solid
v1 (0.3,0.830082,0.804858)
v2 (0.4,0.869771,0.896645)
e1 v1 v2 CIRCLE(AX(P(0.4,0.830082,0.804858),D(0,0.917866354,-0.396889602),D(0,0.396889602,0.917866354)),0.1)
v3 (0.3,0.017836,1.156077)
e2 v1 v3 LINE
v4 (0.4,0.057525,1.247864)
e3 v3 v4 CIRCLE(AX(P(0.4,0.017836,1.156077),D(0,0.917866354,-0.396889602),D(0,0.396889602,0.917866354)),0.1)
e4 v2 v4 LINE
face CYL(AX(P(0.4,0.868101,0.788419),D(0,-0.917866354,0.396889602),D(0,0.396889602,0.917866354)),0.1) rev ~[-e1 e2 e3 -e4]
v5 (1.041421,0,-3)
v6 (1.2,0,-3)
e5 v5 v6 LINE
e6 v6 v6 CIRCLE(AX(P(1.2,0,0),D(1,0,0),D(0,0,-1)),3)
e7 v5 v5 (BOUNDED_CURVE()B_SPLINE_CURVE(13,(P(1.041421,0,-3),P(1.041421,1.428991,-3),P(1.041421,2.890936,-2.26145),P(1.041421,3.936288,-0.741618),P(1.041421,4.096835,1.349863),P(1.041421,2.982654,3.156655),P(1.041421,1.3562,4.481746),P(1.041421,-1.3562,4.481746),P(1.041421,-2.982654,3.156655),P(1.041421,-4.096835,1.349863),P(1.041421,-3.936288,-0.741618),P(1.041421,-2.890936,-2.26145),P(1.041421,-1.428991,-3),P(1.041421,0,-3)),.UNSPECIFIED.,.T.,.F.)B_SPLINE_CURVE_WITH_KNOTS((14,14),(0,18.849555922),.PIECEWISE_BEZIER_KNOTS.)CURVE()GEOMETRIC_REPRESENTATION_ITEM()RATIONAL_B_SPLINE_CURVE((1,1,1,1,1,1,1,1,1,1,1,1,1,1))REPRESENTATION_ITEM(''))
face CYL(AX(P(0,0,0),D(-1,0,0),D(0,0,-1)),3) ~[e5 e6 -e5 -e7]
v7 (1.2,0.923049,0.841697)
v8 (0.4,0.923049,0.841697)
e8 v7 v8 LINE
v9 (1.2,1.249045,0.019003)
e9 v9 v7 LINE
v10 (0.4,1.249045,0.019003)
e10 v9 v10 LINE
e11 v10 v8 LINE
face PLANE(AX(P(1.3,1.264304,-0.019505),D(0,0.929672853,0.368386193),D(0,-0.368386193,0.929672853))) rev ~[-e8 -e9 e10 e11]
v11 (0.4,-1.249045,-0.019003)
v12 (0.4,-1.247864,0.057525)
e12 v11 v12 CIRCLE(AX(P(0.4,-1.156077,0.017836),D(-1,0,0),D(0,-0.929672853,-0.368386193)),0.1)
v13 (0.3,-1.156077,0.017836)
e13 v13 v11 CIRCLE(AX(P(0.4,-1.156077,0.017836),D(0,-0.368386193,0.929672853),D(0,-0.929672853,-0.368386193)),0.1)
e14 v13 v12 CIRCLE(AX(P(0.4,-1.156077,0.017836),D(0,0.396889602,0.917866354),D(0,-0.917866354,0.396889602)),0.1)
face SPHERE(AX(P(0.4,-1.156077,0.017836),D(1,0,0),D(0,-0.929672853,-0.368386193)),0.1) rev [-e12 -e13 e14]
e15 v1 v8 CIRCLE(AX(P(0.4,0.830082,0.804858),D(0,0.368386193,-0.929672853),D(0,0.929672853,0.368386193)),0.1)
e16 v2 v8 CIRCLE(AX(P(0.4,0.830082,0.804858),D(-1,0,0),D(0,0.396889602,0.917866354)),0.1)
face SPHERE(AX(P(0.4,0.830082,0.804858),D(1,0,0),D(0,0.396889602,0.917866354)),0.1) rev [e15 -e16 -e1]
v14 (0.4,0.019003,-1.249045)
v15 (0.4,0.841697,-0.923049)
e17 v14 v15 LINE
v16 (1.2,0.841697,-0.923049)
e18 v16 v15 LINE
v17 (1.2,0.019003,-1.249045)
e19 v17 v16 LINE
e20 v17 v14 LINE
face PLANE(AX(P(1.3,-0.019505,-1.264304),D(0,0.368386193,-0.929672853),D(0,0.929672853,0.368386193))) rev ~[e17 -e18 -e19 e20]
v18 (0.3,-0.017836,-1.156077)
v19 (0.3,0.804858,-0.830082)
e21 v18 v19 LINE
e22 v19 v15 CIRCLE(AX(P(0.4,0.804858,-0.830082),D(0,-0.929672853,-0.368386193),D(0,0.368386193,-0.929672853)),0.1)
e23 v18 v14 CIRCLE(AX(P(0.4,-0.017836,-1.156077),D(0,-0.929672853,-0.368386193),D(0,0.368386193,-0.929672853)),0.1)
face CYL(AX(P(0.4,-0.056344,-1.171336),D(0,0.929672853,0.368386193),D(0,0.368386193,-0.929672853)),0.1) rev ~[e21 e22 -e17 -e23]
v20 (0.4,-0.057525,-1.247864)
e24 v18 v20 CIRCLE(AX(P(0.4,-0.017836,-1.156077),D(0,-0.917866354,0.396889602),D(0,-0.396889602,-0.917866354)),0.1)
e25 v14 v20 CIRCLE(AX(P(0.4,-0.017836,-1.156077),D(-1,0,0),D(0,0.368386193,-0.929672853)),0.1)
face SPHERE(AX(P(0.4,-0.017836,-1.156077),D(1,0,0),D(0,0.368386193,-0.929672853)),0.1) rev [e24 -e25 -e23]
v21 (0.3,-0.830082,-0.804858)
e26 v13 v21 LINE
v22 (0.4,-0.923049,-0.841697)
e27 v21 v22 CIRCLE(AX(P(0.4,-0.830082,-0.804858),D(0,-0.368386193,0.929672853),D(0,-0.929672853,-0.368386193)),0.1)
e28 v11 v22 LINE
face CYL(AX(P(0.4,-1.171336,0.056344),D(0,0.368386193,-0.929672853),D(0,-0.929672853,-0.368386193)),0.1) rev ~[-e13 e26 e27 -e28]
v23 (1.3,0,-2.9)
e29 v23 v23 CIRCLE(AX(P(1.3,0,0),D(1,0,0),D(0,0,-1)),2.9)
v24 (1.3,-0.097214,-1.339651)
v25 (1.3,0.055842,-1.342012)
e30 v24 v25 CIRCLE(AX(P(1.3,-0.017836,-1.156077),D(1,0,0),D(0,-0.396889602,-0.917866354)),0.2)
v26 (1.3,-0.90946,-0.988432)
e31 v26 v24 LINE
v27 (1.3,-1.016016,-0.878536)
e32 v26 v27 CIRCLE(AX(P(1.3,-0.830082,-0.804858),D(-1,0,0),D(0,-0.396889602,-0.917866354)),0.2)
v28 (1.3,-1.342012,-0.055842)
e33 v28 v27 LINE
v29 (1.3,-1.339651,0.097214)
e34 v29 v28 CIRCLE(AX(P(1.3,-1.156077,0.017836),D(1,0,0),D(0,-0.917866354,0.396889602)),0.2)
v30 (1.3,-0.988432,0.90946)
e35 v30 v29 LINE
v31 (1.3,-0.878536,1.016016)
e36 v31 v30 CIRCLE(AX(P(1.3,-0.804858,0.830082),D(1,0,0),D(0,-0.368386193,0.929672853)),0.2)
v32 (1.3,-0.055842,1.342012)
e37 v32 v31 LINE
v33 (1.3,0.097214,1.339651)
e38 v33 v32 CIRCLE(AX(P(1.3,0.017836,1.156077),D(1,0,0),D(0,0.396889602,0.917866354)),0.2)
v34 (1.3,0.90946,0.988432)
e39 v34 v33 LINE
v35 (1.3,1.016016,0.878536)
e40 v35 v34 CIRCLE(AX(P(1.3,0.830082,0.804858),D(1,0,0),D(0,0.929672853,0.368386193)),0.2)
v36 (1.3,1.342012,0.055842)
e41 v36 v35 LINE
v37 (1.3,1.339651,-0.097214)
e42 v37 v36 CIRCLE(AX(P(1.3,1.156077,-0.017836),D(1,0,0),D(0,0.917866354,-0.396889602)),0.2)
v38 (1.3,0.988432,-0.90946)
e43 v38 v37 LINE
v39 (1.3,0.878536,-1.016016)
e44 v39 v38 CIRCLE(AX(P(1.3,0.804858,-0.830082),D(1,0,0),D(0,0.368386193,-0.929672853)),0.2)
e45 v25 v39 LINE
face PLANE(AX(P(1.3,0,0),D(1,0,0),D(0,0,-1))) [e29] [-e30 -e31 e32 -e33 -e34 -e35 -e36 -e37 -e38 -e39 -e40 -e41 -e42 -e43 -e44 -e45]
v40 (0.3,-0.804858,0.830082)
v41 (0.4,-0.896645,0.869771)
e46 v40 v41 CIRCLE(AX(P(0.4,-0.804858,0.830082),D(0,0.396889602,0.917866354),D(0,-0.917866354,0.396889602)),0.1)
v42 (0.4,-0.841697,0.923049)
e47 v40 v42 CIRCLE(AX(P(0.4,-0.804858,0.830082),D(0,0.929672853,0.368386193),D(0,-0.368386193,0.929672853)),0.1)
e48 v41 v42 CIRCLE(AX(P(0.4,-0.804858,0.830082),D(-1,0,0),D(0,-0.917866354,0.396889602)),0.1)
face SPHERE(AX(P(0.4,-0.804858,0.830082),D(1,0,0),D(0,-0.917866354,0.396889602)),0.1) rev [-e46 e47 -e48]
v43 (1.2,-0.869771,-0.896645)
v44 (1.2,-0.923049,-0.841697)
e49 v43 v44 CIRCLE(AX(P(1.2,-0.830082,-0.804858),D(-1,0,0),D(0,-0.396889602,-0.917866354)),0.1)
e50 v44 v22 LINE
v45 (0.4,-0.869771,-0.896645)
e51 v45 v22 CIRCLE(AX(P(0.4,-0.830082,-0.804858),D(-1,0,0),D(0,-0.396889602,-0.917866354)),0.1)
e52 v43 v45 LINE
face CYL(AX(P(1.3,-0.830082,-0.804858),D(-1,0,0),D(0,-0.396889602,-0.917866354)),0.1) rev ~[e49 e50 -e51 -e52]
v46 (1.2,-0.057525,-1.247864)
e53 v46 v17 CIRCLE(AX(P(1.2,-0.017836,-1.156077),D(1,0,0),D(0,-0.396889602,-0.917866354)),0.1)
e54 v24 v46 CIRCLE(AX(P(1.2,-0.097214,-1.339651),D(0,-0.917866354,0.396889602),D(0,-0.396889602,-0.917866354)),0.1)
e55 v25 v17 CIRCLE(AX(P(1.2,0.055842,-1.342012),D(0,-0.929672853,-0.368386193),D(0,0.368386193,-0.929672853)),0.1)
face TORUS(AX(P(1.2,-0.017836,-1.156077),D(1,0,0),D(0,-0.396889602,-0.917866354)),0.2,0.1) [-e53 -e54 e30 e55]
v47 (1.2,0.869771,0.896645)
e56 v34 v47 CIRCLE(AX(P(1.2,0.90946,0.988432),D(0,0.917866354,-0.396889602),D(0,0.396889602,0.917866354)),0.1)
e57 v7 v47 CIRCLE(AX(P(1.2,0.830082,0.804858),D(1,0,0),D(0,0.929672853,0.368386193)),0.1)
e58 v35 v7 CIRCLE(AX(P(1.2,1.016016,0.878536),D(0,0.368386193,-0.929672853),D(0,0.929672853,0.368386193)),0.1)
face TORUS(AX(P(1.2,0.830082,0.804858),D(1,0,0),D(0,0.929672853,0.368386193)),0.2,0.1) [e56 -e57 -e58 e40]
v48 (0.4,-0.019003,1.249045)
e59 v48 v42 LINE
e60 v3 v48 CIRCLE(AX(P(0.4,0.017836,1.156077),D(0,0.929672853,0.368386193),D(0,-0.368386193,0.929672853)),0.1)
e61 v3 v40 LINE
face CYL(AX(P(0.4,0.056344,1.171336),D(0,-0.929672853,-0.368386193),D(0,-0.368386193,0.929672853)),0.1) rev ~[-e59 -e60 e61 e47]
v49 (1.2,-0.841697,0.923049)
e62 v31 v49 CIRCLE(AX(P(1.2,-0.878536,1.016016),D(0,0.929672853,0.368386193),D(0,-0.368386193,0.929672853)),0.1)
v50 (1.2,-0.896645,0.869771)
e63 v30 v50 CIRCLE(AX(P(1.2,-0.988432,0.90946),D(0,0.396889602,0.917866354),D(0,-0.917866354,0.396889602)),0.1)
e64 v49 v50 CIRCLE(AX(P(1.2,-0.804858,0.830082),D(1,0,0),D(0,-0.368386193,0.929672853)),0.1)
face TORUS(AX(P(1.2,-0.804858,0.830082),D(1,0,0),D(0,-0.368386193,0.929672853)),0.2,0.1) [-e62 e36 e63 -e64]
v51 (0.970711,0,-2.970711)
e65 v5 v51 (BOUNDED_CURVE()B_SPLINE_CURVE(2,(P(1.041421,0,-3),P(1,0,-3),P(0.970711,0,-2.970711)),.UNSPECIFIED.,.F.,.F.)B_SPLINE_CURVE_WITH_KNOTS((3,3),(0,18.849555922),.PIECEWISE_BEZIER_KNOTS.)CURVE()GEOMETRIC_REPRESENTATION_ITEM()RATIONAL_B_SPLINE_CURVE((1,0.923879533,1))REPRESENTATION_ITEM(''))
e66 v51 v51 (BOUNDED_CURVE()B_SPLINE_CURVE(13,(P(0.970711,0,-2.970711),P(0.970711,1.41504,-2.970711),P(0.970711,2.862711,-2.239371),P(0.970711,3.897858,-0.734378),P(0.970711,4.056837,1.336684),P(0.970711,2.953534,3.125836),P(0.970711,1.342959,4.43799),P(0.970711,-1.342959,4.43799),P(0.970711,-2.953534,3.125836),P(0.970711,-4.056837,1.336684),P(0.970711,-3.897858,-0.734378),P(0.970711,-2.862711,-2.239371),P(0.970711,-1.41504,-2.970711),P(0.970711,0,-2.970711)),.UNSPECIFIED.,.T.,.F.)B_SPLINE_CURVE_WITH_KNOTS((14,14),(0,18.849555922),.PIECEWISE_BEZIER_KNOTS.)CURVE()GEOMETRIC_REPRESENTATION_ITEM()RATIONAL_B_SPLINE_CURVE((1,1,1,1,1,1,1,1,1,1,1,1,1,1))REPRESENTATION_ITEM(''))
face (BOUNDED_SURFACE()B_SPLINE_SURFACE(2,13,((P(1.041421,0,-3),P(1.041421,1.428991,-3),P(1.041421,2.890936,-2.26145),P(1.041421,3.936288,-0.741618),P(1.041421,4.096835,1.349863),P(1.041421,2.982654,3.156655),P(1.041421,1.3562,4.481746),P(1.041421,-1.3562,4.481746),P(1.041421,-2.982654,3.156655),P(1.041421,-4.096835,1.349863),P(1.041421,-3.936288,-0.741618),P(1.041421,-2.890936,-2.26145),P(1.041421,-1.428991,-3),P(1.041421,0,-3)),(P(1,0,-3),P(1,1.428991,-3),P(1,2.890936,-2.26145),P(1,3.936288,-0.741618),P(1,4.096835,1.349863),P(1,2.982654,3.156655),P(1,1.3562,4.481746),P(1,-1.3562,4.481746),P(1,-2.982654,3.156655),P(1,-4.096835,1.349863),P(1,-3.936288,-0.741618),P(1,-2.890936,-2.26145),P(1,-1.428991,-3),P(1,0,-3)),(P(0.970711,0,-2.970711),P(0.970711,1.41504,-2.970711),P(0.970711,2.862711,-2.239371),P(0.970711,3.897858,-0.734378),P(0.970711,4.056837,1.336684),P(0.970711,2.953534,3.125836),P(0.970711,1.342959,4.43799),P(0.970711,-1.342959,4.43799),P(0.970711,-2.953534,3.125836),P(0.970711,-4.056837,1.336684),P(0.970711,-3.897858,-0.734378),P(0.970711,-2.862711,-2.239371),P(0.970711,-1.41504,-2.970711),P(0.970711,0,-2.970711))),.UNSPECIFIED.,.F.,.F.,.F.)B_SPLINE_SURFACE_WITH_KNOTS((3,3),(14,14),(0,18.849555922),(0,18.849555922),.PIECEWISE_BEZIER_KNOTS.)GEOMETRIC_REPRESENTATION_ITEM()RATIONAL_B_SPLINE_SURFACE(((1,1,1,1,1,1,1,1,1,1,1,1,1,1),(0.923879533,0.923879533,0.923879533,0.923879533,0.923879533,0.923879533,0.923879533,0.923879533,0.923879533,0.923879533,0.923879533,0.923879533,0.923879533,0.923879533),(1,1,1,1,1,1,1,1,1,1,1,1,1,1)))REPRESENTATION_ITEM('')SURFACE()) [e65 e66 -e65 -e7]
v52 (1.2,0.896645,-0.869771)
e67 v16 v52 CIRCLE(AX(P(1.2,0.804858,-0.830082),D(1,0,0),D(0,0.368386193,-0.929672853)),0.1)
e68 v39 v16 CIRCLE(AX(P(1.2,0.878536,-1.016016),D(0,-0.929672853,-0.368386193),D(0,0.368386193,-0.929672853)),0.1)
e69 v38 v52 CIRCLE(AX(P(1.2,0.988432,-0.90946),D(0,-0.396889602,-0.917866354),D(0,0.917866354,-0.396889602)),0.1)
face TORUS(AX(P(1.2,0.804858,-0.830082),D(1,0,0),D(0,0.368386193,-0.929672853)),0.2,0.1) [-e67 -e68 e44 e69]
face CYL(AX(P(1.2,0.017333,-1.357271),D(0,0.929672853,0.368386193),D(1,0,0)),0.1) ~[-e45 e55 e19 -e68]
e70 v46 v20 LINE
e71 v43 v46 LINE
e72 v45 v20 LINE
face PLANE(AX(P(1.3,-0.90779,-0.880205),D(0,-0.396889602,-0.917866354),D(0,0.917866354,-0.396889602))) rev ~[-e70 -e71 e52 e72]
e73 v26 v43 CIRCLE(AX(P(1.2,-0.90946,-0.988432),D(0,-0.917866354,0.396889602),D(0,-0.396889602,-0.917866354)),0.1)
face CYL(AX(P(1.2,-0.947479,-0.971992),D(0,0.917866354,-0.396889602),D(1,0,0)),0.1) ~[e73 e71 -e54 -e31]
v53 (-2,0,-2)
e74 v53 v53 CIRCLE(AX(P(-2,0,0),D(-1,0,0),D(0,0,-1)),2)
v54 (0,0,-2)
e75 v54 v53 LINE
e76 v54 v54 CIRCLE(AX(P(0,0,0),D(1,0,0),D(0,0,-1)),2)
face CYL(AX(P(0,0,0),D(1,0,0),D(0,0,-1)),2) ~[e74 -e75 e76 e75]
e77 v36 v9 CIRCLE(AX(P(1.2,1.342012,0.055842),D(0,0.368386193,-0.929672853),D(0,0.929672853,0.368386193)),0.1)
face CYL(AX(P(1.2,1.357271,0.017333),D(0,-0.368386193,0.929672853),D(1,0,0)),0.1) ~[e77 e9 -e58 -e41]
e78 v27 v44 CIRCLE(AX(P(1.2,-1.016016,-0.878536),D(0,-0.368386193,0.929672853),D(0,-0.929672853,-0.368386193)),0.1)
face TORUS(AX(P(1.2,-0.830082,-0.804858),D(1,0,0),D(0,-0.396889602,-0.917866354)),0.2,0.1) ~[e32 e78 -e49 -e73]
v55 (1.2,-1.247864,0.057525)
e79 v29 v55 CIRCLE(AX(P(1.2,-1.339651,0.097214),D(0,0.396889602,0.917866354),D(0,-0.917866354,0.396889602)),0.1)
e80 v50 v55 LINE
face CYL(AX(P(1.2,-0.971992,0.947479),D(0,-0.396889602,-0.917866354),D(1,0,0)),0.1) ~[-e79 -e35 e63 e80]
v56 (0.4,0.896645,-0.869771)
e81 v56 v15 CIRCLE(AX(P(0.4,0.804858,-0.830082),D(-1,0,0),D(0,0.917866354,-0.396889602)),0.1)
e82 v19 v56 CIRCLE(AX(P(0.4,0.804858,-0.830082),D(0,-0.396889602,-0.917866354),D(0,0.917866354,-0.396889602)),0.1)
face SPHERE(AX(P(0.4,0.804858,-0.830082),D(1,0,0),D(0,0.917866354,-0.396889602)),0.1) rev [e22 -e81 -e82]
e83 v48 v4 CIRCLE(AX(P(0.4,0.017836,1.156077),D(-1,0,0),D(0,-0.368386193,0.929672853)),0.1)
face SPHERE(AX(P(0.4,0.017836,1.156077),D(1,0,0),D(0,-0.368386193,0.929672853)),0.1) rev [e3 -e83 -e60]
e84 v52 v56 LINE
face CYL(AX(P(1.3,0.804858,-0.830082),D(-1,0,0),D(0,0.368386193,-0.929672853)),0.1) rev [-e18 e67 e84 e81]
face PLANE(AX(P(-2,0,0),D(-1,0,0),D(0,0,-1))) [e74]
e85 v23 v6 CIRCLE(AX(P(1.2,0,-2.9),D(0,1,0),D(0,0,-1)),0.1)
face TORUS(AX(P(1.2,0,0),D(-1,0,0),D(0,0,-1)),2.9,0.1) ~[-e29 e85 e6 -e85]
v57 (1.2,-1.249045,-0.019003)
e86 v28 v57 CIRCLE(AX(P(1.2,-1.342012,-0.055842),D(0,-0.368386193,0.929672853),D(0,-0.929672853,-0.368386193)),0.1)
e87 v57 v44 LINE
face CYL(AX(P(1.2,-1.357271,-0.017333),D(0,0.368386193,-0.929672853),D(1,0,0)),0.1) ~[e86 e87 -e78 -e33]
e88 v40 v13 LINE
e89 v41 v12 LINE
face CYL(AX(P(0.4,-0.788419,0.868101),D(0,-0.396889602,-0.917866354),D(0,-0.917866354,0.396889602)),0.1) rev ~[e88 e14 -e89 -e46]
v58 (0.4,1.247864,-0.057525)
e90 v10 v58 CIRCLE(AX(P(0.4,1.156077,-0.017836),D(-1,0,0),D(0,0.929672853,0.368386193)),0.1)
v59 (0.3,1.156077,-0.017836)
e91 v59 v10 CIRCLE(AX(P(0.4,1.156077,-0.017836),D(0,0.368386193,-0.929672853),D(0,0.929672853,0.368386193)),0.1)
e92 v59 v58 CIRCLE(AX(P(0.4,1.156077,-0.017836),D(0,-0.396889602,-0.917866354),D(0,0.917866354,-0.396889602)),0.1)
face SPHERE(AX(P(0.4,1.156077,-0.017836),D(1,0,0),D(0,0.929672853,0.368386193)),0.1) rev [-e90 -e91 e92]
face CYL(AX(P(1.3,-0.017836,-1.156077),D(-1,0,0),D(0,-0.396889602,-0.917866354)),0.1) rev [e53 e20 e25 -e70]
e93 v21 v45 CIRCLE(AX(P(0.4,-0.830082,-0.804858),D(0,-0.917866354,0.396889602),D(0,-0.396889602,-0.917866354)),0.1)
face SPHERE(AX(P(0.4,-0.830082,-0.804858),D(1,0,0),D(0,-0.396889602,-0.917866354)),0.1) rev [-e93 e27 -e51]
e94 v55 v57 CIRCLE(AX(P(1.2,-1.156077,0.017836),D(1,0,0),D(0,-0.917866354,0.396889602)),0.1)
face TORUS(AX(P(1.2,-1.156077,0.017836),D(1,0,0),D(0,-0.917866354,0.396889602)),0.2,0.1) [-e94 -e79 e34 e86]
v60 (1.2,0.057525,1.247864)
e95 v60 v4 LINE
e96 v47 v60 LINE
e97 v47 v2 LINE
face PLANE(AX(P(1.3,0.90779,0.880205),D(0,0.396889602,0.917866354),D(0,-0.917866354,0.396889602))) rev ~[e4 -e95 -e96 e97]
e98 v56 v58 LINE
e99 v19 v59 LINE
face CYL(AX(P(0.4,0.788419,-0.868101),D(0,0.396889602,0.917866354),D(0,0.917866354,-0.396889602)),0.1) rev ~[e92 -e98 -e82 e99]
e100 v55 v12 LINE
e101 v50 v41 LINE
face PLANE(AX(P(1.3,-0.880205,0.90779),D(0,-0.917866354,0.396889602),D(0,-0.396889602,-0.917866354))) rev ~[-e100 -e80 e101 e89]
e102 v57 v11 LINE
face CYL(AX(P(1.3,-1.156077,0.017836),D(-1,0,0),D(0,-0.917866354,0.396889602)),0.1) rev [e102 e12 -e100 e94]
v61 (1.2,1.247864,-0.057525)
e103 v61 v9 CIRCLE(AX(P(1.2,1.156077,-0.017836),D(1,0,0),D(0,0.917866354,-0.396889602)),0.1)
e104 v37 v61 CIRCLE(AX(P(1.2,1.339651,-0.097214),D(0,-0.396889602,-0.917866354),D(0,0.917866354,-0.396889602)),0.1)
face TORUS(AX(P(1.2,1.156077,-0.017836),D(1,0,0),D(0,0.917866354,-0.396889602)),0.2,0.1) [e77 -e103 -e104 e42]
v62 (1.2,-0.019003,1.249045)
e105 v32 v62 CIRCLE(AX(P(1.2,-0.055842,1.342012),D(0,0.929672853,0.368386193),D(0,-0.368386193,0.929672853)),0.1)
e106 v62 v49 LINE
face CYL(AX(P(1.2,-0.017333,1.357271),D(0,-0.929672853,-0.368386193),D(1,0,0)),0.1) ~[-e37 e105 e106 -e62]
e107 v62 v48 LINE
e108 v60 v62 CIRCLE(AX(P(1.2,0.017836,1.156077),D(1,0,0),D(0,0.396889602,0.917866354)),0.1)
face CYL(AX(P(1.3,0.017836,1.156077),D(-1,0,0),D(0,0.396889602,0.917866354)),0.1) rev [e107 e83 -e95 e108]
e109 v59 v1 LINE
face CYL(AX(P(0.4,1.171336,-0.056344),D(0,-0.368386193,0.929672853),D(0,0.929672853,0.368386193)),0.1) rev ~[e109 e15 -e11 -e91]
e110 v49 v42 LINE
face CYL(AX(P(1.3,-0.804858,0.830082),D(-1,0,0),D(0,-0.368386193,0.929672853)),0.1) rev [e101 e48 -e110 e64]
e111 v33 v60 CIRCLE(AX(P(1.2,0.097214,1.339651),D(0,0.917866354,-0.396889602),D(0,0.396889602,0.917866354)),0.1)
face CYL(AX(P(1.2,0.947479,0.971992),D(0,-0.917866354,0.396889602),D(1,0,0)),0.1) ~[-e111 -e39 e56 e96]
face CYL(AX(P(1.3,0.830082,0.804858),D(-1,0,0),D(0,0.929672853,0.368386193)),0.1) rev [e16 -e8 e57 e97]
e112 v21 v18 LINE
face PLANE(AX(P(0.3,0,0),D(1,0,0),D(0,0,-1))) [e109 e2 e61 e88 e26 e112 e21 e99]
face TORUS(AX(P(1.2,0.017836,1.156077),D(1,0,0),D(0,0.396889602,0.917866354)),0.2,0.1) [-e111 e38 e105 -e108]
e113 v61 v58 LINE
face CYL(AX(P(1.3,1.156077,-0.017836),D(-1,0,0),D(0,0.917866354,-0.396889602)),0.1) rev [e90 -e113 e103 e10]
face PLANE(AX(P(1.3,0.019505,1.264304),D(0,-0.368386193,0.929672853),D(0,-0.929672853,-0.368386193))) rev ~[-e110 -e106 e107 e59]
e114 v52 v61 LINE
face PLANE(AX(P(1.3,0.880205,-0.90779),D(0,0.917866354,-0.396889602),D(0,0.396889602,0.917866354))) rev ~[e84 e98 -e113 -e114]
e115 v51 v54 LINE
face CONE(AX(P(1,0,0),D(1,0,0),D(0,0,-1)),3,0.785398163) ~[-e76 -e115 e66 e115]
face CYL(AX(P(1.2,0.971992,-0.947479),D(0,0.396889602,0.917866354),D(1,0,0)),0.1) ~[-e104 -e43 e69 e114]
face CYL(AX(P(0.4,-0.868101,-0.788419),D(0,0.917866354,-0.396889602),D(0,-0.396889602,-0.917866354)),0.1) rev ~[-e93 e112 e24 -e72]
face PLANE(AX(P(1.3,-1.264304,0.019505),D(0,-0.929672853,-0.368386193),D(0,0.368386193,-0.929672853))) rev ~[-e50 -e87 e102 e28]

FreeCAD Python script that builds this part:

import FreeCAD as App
import Part
import Sketcher
from FreeCAD import Vector


def edges_at(feature, points):
    """Names of the edges that pass closest to the given points."""
    edges = feature.Shape.Edges
    near = lambda p: min(range(len(edges)), key=lambda i: edges[i].distToShape(Part.Vertex(*p))[0])
    return sorted({f"Edge{near(p) + 1}" for p in points})


def add_polygon(sketch, points):
    """Adds a closed chain of lines whose ends are joined by coincident constraints."""
    first, n = sketch.GeometryCount, len(points)
    for a, b in zip(points, points[1:] + points[:1]):
        sketch.addGeometry(Part.LineSegment(App.Vector(*a, 0), App.Vector(*b, 0)), False)
    for i in range(n):
        sketch.addConstraint(Sketcher.Constraint("Coincident", first + i, 2, first + (i + 1) % n, 1))

doc = App.newDocument("Part")
body = doc.addObject("PartDesign::Body", "Body")

# Sketch on YZ plane
sketch1 = body.newObject("Sketcher::SketchObject", "Sketch")
sketch1.AttachmentSupport = (doc.getObject("YZ_Plane"), [""])
sketch1.MapMode = "FlatFace"
sketch1.addGeometry(Part.Circle(Vector(0, 0, 0), Vector(0, 0, 1), 3), False)
sketch1.addConstraint([
    Sketcher.Constraint("Coincident", 0, 3, -1, 1),
    Sketcher.Constraint("Diameter", 0, 6.0),
])
pad1 = body.newObject("PartDesign::Pad", "Pad")
pad1.Profile = sketch1
pad1.Length = 1.3
doc.recompute()

chamfer = body.newObject("PartDesign::Chamfer", "Chamfer")
chamfer.Base = (pad1, edges_at(pad1, [(0, 0, 3)]))
chamfer.Size = 1

# Sketch on YZ plane
sketch2 = body.newObject("Sketcher::SketchObject", "Sketch001")
sketch2.AttachmentSupport = (doc.getObject("YZ_Plane"), [""])
sketch2.MapMode = "FlatFace"
sketch2.addGeometry(Part.Circle(Vector(0, 0, 0), Vector(0, 0, 1), 2), False)
sketch2.addConstraint([
    Sketcher.Constraint("Coincident", 0, 3, -1, 1),
    Sketcher.Constraint("Diameter", 0, 4.0),
])
pad2 = body.newObject("PartDesign::Pad", "Pad001")
pad2.Profile = sketch2
pad2.Length = 2
pad2.Reversed = True

# Sketch on YZ plane
sketch3 = body.newObject("Sketcher::SketchObject", "Sketch002")
sketch3.AttachmentSupport = (doc.getObject("YZ_Plane"), [""])
sketch3.MapMode = "FlatFace"
sketch3.AttachmentOffset = App.Placement(Vector(0, 0, 1.3), App.Rotation())
add_polygon(sketch3, [(-0.9, -0.9), (0, -1.3), (0.9, -0.9), (1.3, 0), (0.9, 0.9), (0, 1.3), (-0.9, 0.9), (-1.3, 0)])  # lines 0-7
sketch3.addConstraint([
    Sketcher.Constraint("Symmetric", 0, 2, 4, 2, -1, 1),
    Sketcher.Constraint("Symmetric", 1, 2, 5, 2, -1, 1),
    Sketcher.Constraint("Symmetric", 2, 2, 6, 2, -1, 1),
    Sketcher.Constraint("Symmetric", 3, 2, 7, 2, -1, 1),
    Sketcher.Constraint("Perpendicular", 0, 2),
    Sketcher.Constraint("Perpendicular", 1, 3),
    Sketcher.Constraint("Equal", 0, 1),
    Sketcher.Constraint("Equal", 1, 2),
    Sketcher.Constraint("Equal", 2, 3),
    Sketcher.Constraint("DistanceX", 1, 2, 2, 2, 0.384098),
    Sketcher.Constraint("DistanceY", 0, 2, 2, 2, 1.244798),
    Sketcher.Constraint("Distance", 0, 0.967771),
])
pocket1 = body.newObject("PartDesign::Pocket", "Pocket")
pocket1.Profile = sketch3
pocket1.Length = 1
doc.recompute()

fillet = body.newObject("PartDesign::Fillet", "Fillet")
fillet.Base = (pocket1, edges_at(pocket1, [
    (0.3, -0.464, -1.072),
    (0.8, -0.02, -1.264),
    (0.3, -1.086, -0.43),
    (0.8, -0.908, -0.88),
    (0.3, -1.072, 0.464),
    (0.8, -1.264, 0.02),
    (0.3, -0.43, 1.086),
    (0.8, -0.88, 0.908),
    (0.3, 0.464, 1.072),
    (0.8, 0.02, 1.264),
    (0.3, 1.086, 0.43),
    (0.8, 0.908, 0.88),
    (0.3, 1.072, -0.464),
    (0.8, 1.264, -0.02),
    (0.3, 0.43, -1.086),
    (0.8, 0.88, -0.908),
    (1.3, -0.464, -1.072),
    (1.3, 0.43, -1.086),
    (1.3, 1.072, -0.464),
    (1.3, 1.086, 0.43),
    (1.3, 0.464, 1.072),
    (1.3, -0.43, 1.086),
    (1.3, -1.072, 0.464),
    (1.3, -1.086, -0.43),
]))
fillet.Radius = 0.1
doc.recompute()

fillet2 = body.newObject("PartDesign::Fillet", "Fillet001")
fillet2.Base = (fillet, edges_at(fillet, [(1.3, 0, 3), (1, 0, 3)]))
fillet2.Radius = 0.1

doc.recompute()
